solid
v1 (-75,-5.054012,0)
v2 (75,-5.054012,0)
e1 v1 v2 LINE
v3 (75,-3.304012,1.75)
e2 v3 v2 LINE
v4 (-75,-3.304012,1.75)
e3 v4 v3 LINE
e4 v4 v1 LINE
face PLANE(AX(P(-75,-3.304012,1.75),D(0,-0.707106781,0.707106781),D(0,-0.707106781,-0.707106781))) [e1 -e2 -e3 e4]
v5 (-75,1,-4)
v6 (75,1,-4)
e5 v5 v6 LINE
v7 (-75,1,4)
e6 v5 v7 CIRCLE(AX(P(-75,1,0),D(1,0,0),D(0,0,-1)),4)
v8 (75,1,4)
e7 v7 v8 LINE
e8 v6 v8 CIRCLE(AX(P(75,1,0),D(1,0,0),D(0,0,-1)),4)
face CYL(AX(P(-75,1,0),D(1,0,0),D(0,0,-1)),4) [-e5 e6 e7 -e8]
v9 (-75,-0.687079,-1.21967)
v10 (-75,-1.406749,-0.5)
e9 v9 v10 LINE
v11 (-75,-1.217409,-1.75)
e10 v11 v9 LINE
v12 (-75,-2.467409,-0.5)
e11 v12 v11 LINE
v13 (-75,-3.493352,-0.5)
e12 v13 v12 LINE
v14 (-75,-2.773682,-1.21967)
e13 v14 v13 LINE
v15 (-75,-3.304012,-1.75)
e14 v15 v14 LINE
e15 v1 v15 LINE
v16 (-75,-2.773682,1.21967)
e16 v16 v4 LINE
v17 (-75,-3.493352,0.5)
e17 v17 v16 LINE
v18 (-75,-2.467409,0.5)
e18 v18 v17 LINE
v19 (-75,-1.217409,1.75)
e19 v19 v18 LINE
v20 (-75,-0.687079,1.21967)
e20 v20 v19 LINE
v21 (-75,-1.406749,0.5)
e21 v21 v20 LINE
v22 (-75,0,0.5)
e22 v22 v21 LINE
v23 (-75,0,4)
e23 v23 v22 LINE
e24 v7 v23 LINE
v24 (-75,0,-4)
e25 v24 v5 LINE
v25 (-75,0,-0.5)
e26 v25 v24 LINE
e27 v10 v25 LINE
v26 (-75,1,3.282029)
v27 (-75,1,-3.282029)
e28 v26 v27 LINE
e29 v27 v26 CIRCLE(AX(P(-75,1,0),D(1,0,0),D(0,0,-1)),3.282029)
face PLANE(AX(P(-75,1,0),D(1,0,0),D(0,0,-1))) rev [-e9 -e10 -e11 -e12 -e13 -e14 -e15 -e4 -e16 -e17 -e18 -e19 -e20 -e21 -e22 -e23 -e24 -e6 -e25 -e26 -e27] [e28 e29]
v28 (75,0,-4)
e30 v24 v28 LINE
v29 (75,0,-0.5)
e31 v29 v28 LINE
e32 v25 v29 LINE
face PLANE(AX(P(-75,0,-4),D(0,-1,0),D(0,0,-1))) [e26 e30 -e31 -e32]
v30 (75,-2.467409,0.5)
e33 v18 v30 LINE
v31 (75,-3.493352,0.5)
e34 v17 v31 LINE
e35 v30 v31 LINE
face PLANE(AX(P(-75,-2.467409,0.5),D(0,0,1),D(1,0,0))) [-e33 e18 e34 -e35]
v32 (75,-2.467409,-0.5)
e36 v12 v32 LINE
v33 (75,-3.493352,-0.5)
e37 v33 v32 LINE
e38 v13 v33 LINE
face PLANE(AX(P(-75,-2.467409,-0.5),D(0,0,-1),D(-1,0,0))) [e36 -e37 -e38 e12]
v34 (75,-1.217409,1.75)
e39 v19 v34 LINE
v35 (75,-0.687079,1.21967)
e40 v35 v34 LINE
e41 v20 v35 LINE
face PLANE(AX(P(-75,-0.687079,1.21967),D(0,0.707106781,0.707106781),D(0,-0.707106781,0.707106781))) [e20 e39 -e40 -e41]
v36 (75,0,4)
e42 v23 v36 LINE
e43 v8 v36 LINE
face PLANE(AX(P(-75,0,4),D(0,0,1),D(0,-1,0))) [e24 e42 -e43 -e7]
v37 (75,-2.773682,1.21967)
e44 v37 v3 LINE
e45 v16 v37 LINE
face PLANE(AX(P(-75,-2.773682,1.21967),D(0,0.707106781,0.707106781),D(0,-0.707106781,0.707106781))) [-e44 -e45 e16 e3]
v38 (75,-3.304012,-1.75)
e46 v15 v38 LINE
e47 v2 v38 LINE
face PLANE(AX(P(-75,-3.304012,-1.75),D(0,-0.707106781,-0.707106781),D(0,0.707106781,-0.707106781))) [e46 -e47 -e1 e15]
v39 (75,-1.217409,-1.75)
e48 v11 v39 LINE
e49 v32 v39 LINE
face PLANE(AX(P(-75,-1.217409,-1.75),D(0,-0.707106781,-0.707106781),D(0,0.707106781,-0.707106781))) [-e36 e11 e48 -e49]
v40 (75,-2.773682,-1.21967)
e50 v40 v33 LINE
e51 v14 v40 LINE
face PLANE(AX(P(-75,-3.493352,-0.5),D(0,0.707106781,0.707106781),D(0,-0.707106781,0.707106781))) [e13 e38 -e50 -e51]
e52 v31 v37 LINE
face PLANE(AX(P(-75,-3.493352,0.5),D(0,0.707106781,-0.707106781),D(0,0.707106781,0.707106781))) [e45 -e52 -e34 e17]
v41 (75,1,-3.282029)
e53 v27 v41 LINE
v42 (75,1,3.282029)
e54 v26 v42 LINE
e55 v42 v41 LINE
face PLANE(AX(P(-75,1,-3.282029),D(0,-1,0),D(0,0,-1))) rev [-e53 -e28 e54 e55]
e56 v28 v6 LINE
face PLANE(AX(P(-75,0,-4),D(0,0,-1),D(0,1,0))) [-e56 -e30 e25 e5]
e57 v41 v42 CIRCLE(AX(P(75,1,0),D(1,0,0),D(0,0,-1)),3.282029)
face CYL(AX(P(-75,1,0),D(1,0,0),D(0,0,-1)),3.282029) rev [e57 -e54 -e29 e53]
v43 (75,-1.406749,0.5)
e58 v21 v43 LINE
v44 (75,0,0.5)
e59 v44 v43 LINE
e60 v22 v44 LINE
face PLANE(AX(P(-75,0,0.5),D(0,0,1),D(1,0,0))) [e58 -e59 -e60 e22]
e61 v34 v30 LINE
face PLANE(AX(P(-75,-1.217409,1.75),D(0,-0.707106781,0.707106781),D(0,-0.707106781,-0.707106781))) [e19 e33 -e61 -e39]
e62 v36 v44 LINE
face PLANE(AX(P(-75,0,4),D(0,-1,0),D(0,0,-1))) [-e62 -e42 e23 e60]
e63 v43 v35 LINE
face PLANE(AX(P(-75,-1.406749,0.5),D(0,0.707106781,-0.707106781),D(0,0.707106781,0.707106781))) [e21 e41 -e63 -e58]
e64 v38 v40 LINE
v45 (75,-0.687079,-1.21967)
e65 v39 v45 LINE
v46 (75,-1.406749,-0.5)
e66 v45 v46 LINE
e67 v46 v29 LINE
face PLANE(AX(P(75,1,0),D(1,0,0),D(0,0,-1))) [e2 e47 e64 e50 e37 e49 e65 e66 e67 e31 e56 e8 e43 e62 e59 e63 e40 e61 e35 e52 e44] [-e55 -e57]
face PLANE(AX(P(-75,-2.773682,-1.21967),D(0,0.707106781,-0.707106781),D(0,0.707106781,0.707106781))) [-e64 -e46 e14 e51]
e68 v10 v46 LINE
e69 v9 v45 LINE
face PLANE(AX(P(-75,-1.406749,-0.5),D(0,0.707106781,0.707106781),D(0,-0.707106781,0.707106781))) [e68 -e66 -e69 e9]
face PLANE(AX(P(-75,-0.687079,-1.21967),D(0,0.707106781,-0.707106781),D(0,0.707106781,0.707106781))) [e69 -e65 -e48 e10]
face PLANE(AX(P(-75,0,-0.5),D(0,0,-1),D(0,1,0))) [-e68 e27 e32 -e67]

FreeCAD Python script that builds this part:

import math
import FreeCAD as App
import Part
import Sketcher
from FreeCAD import Vector
Q = App.Units.Quantity

doc = App.newDocument("Part")
params = doc.addObject("Spreadsheet::Sheet", "Params")
for row, (alias, value) in enumerate([
    ("sketch1_radius", "4 mm"),
    ("sketch1_width", "1 mm"),
    ("sketch1_height", "3.5 mm"),
    ("sketch1_length", "0.75 mm"),
    ("pad1_length", "75 mm"),
    ("pad1_length2", "75 mm"),
], start=1):
    params.set(f"A{row}", alias)
    params.set(f"B{row}", "=" + value)
    params.setAlias(f"B{row}", alias)

body = doc.addObject("PartDesign::Body", "Body")

# Sketch on YZ plane
sketch1 = body.newObject("Sketcher::SketchObject", "Sketch")
sketch1.AttachmentSupport = (doc.getObject("YZ_Plane"), [""])
sketch1.MapMode = "FlatFace"
sketch1.addGeometry(Part.LineSegment(Vector(0, 4, 0), Vector(0, 0.5, 0)), False)
sketch1.addGeometry(Part.LineSegment(Vector(0, 0.5, 0), Vector(-1.4, 0.5, 0)), False)
sketch1.addGeometry(Part.LineSegment(Vector(-1.4, 0.5, 0), Vector(-0.7, 1.2, 0)), False)
sketch1.addGeometry(Part.LineSegment(Vector(-0.7, 1.2, 0), Vector(-1.2, 1.8, 0)), False)
sketch1.addGeometry(Part.LineSegment(Vector(-1.2, 1.8, 0), Vector(-2.5, 0.5, 0)), False)
sketch1.addGeometry(Part.LineSegment(Vector(-2.5, 0.5, 0), Vector(-3.5, 0.5, 0)), False)
sketch1.addGeometry(Part.LineSegment(Vector(-3.5, 0.5, 0), Vector(-2.8, 1.2, 0)), False)
sketch1.addGeometry(Part.LineSegment(Vector(-2.8, 1.2, 0), Vector(-3.3, 1.8, 0)), False)
sketch1.addGeometry(Part.LineSegment(Vector(-3.3, 1.8, 0), Vector(-5.1, 0, 0)), False)
sketch1.addGeometry(Part.LineSegment(Vector(-5.1, 0, 0), Vector(-3.3, -1.8, 0)), False)
sketch1.addGeometry(Part.LineSegment(Vector(-3.3, -1.8, 0), Vector(-2.8, -1.2, 0)), False)
sketch1.addGeometry(Part.LineSegment(Vector(-2.8, -1.2, 0), Vector(-3.5, -0.5, 0)), False)
sketch1.addGeometry(Part.LineSegment(Vector(-3.5, -0.5, 0), Vector(-2.5, -0.5, 0)), False)
sketch1.addGeometry(Part.LineSegment(Vector(-2.5, -0.5, 0), Vector(-1.2, -1.8, 0)), False)
sketch1.addGeometry(Part.LineSegment(Vector(-1.2, -1.8, 0), Vector(-0.7, -1.2, 0)), False)
sketch1.addGeometry(Part.LineSegment(Vector(-0.7, -1.2, 0), Vector(-1.4, -0.5, 0)), False)
sketch1.addGeometry(Part.LineSegment(Vector(-1.4, -0.5, 0), Vector(0, -0.5, 0)), False)
sketch1.addGeometry(Part.LineSegment(Vector(0, -0.5, 0), Vector(0, -4, 0)), False)
sketch1.addGeometry(Part.LineSegment(Vector(0, -4, 0), Vector(1, -4, 0)), False)
sketch1.addGeometry(Part.ArcOfCircle(Part.Circle(Vector(1, 0, 0), Vector(0, 0, 1), 4), math.radians(-90), math.radians(90)), False)
sketch1.addGeometry(Part.LineSegment(Vector(1, 4, 0), Vector(0, 4, 0)), False)
sketch1.addGeometry(Part.ArcOfCircle(Part.Circle(Vector(1, 0, 0), Vector(0, 0, 1), 3.3), math.radians(-90), math.radians(90)), False)
sketch1.addGeometry(Part.LineSegment(Vector(1, -3.3, 0), Vector(1, 3.3, 0)), False)
sketch1.addConstraint(Sketcher.Constraint("Coincident", 0, 2, 1, 1))
sketch1.addConstraint(Sketcher.Constraint("Coincident", 1, 2, 2, 1))
sketch1.addConstraint(Sketcher.Constraint("Coincident", 2, 2, 3, 1))
sketch1.addConstraint(Sketcher.Constraint("Coincident", 3, 2, 4, 1))
sketch1.addConstraint(Sketcher.Constraint("Coincident", 4, 2, 5, 1))
sketch1.addConstraint(Sketcher.Constraint("Coincident", 5, 2, 6, 1))
sketch1.addConstraint(Sketcher.Constraint("Coincident", 6, 2, 7, 1))
sketch1.addConstraint(Sketcher.Constraint("Coincident", 7, 2, 8, 1))
sketch1.addConstraint(Sketcher.Constraint("Coincident", 8, 2, 9, 1))
sketch1.addConstraint(Sketcher.Constraint("Coincident", 9, 2, 10, 1))
sketch1.addConstraint(Sketcher.Constraint("Coincident", 10, 2, 11, 1))
sketch1.addConstraint(Sketcher.Constraint("Coincident", 11, 2, 12, 1))
sketch1.addConstraint(Sketcher.Constraint("Coincident", 12, 2, 13, 1))
sketch1.addConstraint(Sketcher.Constraint("Coincident", 13, 2, 14, 1))
sketch1.addConstraint(Sketcher.Constraint("Coincident", 14, 2, 15, 1))
sketch1.addConstraint(Sketcher.Constraint("Coincident", 15, 2, 16, 1))
sketch1.addConstraint(Sketcher.Constraint("Coincident", 16, 2, 17, 1))
sketch1.addConstraint(Sketcher.Constraint("Coincident", 17, 2, 18, 1))
sketch1.addConstraint(Sketcher.Constraint("Tangent", 18, 2, 19, 1))
sketch1.addConstraint(Sketcher.Constraint("Tangent", 19, 2, 20, 1))
sketch1.addConstraint(Sketcher.Constraint("Coincident", 20, 2, 0, 1))
sketch1.addConstraint(Sketcher.Constraint("Coincident", 21, 1, 22, 1))
sketch1.addConstraint(Sketcher.Constraint("Coincident", 22, 2, 21, 2))
sketch1.addConstraint(Sketcher.Constraint("Vertical", 0))
sketch1.addConstraint(Sketcher.Constraint("Horizontal", 1))
sketch1.addConstraint(Sketcher.Constraint("Horizontal", 5))
sketch1.addConstraint(Sketcher.Constraint("Horizontal", 12))
sketch1.addConstraint(Sketcher.Constraint("Horizontal", 16))
sketch1.addConstraint(Sketcher.Constraint("Vertical", 17))
sketch1.addConstraint(Sketcher.Constraint("Horizontal", 18))
sketch1.addConstraint(Sketcher.Constraint("Horizontal", 20))
sketch1.addConstraint(Sketcher.Constraint("Vertical", 22))
sketch1.addConstraint(Sketcher.Constraint("Coincident", 21, 3, 19, 3))
sketch1.addConstraint(Sketcher.Constraint("Symmetric", 0, 2, 16, 2, -1, 1))
sketch1.addConstraint(Sketcher.Constraint("Symmetric", 7, 2, 9, 2, -1))
sketch1.addConstraint(Sketcher.Constraint("Symmetric", 6, 2, 10, 2, -1))
sketch1.addConstraint(Sketcher.Constraint("Symmetric", 5, 2, 11, 2, -1))
sketch1.addConstraint(Sketcher.Constraint("Symmetric", 3, 2, 13, 2, -1))
sketch1.addConstraint(Sketcher.Constraint("Symmetric", 2, 2, 14, 2, -1))
sketch1.addConstraint(Sketcher.Constraint("Symmetric", 17, 2, 20, 2, -1))
sketch1.addConstraint(Sketcher.Constraint("PointOnObject", 8, 2, -1))
sketch1.addConstraint(Sketcher.Constraint("Perpendicular", 2, 3))
sketch1.addConstraint(Sketcher.Constraint("Perpendicular", 3, 4))
sketch1.addConstraint(Sketcher.Constraint("Parallel", 4, 6))
sketch1.addConstraint(Sketcher.Constraint("Perpendicular", 6, 7))
sketch1.addConstraint(Sketcher.Constraint("Perpendicular", 7, 8))
sketch1.addConstraint(Sketcher.Constraint("Perpendicular", 8, 9))
sketch1.addConstraint(Sketcher.Constraint("Parallel", 11, 13))
sketch1.addConstraint(Sketcher.Constraint("Perpendicular", 14, 15))
sketch1.addConstraint(Sketcher.Constraint("Horizontal", 1, 2, 4, 2))
sketch1.addConstraint(Sketcher.Constraint("Horizontal", 2, 2, 6, 2))
sketch1.addConstraint(Sketcher.Constraint("Horizontal", 3, 2, 7, 2))
sketch1.addConstraint(Sketcher.Constraint("Vertical", 19, 2, 21, 1))
sketch1.addConstraint(Sketcher.Constraint("Radius", 19, Q("4 mm")))
sketch1.addConstraint(Sketcher.Constraint("DistanceX", 18, 1, 18, 2, Q("1 mm")))
sketch1.addConstraint(Sketcher.Constraint("DistanceY", 0, 2, 0, 1, Q("3.5 mm")))
sketch1.addConstraint(Sketcher.Constraint("Distance", 3, Q("0.75 mm")))
sketch1.addConstraint(Sketcher.Constraint("DistanceY", -1, 1, 3, 2, Q("1.75 mm")))
sketch1.addConstraint(Sketcher.Constraint("Radius", 21, Q("3.282029 mm")))
sketch1.addConstraint(Sketcher.Constraint("DistanceX", 1, 2, 1, 1, Q("1.406749 mm")))
sketch1.addConstraint(Sketcher.Constraint("DistanceX", 5, 2, 5, 1, Q("1.025943 mm")))
sketch1.setExpression("Constraints[53]", "Params.sketch1_radius")
sketch1.setExpression("Constraints[54]", "Params.sketch1_width")
sketch1.setExpression("Constraints[55]", "Params.sketch1_height")
sketch1.setExpression("Constraints[56]", "Params.sketch1_length")
pad1 = body.newObject("PartDesign::Pad", "Pad")
pad1.Profile = sketch1
pad1.Type = "TwoLengths"
pad1.setExpression("Length", "Params.pad1_length")
pad1.setExpression("Length2", "Params.pad1_length2")

doc.recompute()
